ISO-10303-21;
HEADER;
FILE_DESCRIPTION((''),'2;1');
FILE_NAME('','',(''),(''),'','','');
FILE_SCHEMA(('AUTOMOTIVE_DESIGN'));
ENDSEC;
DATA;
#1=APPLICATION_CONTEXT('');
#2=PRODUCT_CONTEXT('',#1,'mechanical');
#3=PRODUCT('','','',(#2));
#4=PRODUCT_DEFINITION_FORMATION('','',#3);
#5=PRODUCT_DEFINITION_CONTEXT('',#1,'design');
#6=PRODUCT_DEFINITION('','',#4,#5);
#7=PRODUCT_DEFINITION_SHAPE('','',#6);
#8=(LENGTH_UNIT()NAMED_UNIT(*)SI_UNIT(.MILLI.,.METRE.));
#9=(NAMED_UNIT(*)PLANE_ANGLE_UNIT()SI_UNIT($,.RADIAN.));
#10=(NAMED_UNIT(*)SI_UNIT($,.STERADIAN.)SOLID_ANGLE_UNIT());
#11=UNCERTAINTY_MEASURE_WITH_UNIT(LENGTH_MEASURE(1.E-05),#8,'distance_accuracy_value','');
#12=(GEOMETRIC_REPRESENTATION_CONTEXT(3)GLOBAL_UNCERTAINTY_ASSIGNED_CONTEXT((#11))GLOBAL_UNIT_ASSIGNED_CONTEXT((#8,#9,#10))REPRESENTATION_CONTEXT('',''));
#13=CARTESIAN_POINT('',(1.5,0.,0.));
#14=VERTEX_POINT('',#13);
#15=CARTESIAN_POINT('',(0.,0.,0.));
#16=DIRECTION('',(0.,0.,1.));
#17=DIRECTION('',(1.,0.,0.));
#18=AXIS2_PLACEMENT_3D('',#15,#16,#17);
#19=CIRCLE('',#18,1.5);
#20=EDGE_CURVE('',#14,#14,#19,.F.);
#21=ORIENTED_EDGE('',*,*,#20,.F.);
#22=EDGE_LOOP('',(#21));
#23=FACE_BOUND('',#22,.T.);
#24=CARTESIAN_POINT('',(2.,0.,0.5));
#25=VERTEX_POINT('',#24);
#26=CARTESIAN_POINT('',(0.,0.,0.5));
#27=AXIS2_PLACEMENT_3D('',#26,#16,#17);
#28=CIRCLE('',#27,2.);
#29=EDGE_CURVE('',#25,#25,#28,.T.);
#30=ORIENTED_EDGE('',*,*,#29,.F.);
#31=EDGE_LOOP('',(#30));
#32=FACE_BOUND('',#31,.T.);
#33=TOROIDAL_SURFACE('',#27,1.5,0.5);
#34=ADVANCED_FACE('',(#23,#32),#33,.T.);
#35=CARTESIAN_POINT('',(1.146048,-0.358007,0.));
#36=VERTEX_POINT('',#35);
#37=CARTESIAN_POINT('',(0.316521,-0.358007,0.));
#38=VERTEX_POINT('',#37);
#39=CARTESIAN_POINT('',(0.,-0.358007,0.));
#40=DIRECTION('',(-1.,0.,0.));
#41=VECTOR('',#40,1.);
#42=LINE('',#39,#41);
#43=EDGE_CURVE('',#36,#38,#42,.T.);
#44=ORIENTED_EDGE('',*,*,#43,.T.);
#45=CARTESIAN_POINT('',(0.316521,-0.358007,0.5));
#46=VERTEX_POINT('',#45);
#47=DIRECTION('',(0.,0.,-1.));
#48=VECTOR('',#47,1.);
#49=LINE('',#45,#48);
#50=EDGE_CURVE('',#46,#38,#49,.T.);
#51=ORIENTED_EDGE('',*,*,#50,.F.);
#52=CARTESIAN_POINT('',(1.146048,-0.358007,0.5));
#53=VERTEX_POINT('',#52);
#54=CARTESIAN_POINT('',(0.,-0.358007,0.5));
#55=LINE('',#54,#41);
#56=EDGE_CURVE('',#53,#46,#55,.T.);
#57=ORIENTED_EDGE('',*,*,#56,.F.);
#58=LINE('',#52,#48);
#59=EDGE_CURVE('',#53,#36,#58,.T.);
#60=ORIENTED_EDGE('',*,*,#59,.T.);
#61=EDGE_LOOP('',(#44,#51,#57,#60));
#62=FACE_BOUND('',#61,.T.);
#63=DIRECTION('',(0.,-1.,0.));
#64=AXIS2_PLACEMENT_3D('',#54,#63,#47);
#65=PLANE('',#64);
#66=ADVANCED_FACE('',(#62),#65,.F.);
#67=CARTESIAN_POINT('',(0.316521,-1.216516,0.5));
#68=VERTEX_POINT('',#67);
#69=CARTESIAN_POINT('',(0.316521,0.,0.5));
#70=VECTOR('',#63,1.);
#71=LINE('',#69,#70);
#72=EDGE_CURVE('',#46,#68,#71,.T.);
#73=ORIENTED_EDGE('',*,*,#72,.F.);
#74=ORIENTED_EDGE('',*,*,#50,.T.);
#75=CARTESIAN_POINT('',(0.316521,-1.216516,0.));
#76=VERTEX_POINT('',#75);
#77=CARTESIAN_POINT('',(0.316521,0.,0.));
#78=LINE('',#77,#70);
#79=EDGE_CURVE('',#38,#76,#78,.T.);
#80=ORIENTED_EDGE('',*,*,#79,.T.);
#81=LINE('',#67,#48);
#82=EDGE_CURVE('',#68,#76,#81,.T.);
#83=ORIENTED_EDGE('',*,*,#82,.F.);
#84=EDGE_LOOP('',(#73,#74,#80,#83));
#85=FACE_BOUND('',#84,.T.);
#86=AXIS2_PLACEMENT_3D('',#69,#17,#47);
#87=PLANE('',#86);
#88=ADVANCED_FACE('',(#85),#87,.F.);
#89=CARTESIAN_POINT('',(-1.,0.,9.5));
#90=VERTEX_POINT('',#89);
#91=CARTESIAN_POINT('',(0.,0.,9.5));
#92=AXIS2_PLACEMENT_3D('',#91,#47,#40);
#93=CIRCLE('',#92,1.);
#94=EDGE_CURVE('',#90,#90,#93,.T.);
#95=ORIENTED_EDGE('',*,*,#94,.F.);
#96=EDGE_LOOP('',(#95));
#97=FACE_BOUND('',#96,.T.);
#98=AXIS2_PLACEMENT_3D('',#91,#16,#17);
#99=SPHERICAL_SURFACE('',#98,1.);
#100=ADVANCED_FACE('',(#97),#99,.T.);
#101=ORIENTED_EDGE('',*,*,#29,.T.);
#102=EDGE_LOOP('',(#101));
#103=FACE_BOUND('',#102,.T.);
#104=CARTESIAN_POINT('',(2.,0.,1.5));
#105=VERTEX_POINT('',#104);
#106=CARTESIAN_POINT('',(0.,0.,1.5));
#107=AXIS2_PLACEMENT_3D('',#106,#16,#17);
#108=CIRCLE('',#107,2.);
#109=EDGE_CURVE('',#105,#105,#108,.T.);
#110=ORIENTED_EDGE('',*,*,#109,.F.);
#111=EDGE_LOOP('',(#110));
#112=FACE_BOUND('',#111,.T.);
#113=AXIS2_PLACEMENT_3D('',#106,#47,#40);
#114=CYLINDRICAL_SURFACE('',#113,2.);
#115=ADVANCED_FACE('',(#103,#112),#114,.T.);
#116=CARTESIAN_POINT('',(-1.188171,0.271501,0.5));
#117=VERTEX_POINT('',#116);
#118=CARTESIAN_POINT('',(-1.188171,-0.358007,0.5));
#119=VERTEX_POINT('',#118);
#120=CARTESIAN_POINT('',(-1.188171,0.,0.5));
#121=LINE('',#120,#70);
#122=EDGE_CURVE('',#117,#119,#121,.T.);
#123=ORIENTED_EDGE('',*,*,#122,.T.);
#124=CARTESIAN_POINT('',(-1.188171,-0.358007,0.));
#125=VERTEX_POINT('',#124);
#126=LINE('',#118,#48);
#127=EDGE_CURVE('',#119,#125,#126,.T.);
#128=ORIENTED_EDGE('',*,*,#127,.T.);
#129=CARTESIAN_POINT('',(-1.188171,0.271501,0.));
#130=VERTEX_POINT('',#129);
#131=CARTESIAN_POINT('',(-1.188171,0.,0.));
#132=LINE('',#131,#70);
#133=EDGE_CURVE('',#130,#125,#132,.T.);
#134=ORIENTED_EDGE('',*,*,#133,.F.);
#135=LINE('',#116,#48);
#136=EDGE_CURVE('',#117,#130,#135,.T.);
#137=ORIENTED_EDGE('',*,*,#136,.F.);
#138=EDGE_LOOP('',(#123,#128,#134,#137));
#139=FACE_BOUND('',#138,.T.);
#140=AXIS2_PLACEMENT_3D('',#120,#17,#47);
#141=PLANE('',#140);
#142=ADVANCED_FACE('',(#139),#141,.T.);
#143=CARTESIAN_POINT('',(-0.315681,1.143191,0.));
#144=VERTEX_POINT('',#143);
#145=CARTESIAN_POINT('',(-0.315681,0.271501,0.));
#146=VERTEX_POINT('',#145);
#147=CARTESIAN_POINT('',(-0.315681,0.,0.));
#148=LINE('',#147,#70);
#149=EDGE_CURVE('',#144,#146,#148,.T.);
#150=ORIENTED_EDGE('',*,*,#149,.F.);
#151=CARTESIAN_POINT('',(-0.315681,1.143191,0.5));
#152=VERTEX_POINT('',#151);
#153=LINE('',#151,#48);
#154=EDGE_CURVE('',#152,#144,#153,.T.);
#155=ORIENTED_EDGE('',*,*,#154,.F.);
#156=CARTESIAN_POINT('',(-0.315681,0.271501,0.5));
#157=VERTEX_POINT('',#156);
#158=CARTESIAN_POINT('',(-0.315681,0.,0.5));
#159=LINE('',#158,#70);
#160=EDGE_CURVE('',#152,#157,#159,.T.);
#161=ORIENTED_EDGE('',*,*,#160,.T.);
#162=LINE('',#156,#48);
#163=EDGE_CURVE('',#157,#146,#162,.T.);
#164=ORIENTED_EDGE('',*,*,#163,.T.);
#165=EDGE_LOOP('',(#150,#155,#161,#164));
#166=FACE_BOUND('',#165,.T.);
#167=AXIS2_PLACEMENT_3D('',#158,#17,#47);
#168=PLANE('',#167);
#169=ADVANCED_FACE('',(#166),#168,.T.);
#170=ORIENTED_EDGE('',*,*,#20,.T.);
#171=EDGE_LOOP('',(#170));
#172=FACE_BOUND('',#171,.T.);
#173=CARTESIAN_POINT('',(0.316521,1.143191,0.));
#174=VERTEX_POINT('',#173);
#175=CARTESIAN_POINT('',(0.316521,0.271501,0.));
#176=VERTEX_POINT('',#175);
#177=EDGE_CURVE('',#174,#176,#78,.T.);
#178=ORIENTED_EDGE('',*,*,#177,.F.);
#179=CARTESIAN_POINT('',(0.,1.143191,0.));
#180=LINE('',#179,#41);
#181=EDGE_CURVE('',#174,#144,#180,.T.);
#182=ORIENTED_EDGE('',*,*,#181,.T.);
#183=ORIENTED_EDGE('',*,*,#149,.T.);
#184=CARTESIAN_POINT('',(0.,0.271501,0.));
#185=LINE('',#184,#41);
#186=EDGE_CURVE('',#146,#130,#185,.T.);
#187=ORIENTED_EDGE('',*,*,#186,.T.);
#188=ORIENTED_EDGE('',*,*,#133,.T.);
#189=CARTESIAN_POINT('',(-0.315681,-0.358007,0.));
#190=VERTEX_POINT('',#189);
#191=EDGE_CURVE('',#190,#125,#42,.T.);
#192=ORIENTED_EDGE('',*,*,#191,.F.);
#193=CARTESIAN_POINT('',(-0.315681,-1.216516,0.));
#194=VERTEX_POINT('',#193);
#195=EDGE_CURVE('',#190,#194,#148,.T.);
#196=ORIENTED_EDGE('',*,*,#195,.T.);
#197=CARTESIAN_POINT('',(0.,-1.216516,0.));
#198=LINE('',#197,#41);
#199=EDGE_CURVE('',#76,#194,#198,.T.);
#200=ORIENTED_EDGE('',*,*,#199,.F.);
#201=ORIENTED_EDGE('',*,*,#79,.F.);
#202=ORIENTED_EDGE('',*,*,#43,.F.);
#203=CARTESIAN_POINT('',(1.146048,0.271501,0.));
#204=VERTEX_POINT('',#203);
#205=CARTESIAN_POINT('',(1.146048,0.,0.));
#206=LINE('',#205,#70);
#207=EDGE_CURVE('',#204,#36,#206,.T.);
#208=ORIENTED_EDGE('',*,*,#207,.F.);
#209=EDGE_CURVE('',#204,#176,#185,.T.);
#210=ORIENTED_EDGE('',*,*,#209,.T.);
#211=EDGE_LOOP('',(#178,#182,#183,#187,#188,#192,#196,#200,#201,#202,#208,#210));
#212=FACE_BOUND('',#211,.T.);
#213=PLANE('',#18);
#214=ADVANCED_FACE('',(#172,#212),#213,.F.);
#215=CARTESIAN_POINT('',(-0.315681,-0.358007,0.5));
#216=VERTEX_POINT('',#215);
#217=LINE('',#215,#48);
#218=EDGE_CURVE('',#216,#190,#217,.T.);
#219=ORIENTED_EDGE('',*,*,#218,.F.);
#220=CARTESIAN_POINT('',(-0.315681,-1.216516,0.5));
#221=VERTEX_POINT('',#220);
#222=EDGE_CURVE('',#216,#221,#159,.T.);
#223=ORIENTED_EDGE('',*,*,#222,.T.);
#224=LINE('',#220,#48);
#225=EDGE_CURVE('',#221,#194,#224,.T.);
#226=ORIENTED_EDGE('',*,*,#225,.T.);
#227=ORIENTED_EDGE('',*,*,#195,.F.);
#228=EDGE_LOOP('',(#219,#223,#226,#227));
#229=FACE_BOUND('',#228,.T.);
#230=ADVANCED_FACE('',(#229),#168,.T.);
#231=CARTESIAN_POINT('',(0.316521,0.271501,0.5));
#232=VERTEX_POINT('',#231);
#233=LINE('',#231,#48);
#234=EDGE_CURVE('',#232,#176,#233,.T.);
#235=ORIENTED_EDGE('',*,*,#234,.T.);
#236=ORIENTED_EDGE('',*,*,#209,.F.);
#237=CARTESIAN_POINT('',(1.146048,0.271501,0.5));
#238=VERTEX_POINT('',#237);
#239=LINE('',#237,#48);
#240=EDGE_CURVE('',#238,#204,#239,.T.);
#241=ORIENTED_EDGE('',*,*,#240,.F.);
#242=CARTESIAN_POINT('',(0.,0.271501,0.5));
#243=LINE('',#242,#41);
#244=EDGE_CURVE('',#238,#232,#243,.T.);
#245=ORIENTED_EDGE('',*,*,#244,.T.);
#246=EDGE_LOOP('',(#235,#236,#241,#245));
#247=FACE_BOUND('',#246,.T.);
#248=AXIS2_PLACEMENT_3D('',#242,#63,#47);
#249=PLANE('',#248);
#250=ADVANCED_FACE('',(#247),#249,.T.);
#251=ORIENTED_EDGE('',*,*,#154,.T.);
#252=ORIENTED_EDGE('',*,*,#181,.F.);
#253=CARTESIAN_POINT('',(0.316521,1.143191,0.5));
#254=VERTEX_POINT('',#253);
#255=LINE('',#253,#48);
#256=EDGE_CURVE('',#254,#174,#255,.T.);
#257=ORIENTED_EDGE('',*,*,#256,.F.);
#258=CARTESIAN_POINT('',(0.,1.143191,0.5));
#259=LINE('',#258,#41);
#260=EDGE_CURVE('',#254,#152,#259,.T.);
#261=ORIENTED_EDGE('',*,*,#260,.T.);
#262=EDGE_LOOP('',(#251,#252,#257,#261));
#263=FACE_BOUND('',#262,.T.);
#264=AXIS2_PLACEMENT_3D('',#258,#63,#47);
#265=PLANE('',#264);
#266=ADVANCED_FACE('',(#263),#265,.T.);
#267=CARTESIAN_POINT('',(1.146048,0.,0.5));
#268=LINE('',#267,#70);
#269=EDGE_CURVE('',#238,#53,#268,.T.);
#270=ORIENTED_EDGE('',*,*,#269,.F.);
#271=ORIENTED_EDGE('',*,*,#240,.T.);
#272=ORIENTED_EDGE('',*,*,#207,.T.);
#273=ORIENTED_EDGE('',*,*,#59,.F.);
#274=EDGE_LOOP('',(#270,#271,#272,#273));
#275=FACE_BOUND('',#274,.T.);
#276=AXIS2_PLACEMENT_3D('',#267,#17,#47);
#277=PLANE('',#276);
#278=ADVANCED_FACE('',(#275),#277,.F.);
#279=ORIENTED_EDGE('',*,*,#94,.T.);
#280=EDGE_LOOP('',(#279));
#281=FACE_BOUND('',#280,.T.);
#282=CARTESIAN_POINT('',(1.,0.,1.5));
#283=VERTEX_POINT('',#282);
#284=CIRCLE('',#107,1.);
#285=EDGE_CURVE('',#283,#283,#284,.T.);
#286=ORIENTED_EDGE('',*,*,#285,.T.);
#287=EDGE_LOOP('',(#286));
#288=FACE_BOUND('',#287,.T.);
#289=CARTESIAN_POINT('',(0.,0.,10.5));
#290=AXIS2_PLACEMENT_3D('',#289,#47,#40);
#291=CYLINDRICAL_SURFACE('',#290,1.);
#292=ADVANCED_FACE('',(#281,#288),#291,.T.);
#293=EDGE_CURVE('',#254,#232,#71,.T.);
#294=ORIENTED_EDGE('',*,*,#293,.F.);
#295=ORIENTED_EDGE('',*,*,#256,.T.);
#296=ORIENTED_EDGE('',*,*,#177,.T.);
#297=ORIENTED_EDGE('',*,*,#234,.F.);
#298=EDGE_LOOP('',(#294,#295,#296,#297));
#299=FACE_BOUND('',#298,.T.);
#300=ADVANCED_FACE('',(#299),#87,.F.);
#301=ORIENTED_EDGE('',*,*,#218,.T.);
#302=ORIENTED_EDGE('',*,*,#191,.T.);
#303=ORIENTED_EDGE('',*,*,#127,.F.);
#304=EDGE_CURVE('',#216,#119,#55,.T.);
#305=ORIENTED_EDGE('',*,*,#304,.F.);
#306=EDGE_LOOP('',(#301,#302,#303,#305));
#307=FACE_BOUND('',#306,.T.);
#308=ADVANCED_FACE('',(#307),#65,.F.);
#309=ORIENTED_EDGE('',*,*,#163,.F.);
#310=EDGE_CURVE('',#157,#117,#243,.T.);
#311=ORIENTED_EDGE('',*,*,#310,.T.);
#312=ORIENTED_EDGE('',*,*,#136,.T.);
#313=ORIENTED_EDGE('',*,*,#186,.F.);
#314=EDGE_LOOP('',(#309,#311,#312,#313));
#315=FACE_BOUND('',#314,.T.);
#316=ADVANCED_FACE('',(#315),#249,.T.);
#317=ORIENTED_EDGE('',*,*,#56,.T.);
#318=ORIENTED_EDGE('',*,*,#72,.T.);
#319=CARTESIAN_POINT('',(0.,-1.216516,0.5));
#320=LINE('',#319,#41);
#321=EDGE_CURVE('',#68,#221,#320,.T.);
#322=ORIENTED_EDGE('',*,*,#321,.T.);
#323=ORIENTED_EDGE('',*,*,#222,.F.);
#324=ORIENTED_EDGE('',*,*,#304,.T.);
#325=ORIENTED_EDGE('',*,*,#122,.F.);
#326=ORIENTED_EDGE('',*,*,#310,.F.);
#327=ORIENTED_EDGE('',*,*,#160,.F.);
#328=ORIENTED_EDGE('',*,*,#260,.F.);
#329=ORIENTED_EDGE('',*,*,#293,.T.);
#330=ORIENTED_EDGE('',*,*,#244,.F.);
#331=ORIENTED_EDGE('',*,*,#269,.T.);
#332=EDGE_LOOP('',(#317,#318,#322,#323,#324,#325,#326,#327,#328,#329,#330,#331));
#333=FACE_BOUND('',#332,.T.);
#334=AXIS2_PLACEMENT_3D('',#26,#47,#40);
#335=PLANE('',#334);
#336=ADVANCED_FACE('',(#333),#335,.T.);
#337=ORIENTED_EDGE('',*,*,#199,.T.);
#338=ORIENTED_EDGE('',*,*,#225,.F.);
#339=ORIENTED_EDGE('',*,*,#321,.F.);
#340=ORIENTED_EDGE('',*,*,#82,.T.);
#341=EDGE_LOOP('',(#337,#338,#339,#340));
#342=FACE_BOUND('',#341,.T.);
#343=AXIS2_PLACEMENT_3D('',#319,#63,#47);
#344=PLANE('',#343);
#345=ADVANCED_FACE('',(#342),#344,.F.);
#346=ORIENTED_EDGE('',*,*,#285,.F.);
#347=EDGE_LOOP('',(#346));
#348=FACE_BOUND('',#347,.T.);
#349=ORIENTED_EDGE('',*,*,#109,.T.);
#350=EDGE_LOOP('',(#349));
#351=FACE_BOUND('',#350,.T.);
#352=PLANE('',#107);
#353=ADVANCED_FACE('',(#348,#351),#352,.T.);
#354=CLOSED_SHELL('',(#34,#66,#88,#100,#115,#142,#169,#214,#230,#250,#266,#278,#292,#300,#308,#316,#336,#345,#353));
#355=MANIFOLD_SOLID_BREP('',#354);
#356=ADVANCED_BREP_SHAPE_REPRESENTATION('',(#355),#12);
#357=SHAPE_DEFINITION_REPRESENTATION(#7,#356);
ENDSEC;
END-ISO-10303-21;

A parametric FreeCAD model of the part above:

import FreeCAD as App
import Part
import Sketcher

V = App.Vector
Q = App.Units.Quantity


def edges_at(feature, points):
    """Names of the edges that pass closest to the given points."""
    edges = feature.Shape.Edges
    near = lambda p: min(range(len(edges)), key=lambda i: edges[i].distToShape(Part.Vertex(*p))[0])
    return sorted({f"Edge{near(p) + 1}" for p in points})

doc = App.newDocument("Part")
params = doc.addObject("Spreadsheet::Sheet", "Params")
for row, (alias, value) in enumerate([
    ("sketch1_diameter", "4 mm"),
    ("pad1_length", "1.5 mm"),
    ("sketch2_diameter", "2 mm"),
    ("pad2_length", "9 mm"),
    ("fillet_radius", "1 mm"),
    ("fillet2_radius", "0.5 mm"),
    ("pocket1_length", "0.5 mm"),
], start=1):
    params.set(f"A{row}", alias)
    params.set(f"B{row}", "=" + value)
    params.setAlias(f"B{row}", alias)

body = doc.addObject("PartDesign::Body", "Body")

# Sketch on XY plane
sketch1 = doc.addObject("Sketcher::SketchObject", "Sketch")
body.addObject(sketch1)
sketch1.AttachmentSupport = (doc.XY_Plane, [""])
sketch1.MapMode = "FlatFace"
sketch1.addGeometry(Part.Circle(V(0, 0, 0), V(0, 0, 1), 2), False)
sketch1.addConstraint([
    Sketcher.Constraint("Coincident", 0, 3, -1, 1),
    Sketcher.Constraint("Diameter", 0, Q("4 mm")),
])
sketch1.setExpression("Constraints[1]", "Params.sketch1_diameter")
pad1 = doc.addObject("PartDesign::Pad", "Pad")
body.addObject(pad1)
pad1.Profile = sketch1
pad1.setExpression("Length", "Params.pad1_length")

# Sketch on XY plane
sketch2 = doc.addObject("Sketcher::SketchObject", "Sketch001")
body.addObject(sketch2)
sketch2.AttachmentSupport = (doc.XY_Plane, [""])
sketch2.MapMode = "FlatFace"
sketch2.AttachmentOffset = App.Placement(V(0, 0, 1.5), App.Rotation())
sketch2.addGeometry(Part.Circle(V(0, 0, 0), V(0, 0, 1), 1), False)
sketch2.addConstraint([
    Sketcher.Constraint("Coincident", 0, 3, -1, 1),
    Sketcher.Constraint("Diameter", 0, Q("2 mm")),
])
sketch2.setExpression("Constraints[1]", "Params.sketch2_diameter")
pad2 = doc.addObject("PartDesign::Pad", "Pad001")
body.addObject(pad2)
pad2.Profile = sketch2
pad2.setExpression("Length", "Params.pad2_length")
doc.recompute()

fillet = doc.addObject("PartDesign::Fillet", "Fillet")
body.addObject(fillet)
fillet.Base = (pad2, edges_at(pad2, [(-1, 0, 10.5)]))
fillet.setExpression("Radius", "Params.fillet_radius")
doc.recompute()

fillet2 = doc.addObject("PartDesign::Fillet", "Fillet001")
body.addObject(fillet2)
fillet2.Base = (fillet, edges_at(fillet, [(-2, 0, 0)]))
fillet2.setExpression("Radius", "Params.fillet2_radius")

# Sketch on XY plane
sketch3 = doc.addObject("Sketcher::SketchObject", "Sketch002")
body.addObject(sketch3)
sketch3.AttachmentSupport = (doc.XY_Plane, [""])
sketch3.MapMode = "FlatFace"
sketch3.addGeometry([
    Part.LineSegment(V(1.146048, 0.271501, 0), V(1.146048, -0.358007, 0)),  # 0
    Part.LineSegment(V(1.146048, -0.358007, 0), V(0.316521, -0.358007, 0)),  # 1
    Part.LineSegment(V(0.316521, -0.358007, 0), V(0.316521, -1.216516, 0)),  # 2
    Part.LineSegment(V(0.316521, -1.216516, 0), V(-0.315681, -1.216516, 0)),  # 3
    Part.LineSegment(V(-0.315681, -1.216516, 0), V(-0.315681, -0.358007, 0)),  # 4
    Part.LineSegment(V(-0.315681, -0.358007, 0), V(-1.188171, -0.358007, 0)),  # 5
    Part.LineSegment(V(-1.188171, -0.358007, 0), V(-1.188171, 0.271501, 0)),  # 6
    Part.LineSegment(V(-1.188171, 0.271501, 0), V(-0.315681, 0.271501, 0)),  # 7
    Part.LineSegment(V(-0.315681, 0.271501, 0), V(-0.315681, 1.143191, 0)),  # 8
    Part.LineSegment(V(-0.315681, 1.143191, 0), V(0.316521, 1.143191, 0)),  # 9
    Part.LineSegment(V(0.316521, 1.143191, 0), V(0.316521, 0.271501, 0)),  # 10
    Part.LineSegment(V(0.316521, 0.271501, 0), V(1.146048, 0.271501, 0)),  # 11
], False)
sketch3.addConstraint([
    Sketcher.Constraint("Coincident", 0, 2, 1, 1),
    Sketcher.Constraint("Coincident", 1, 2, 2, 1),
    Sketcher.Constraint("Coincident", 2, 2, 3, 1),
    Sketcher.Constraint("Coincident", 3, 2, 4, 1),
    Sketcher.Constraint("Coincident", 4, 2, 5, 1),
    Sketcher.Constraint("Coincident", 5, 2, 6, 1),
    Sketcher.Constraint("Coincident", 6, 2, 7, 1),
    Sketcher.Constraint("Coincident", 7, 2, 8, 1),
    Sketcher.Constraint("Coincident", 8, 2, 9, 1),
    Sketcher.Constraint("Coincident", 9, 2, 10, 1),
    Sketcher.Constraint("Coincident", 10, 2, 11, 1),
    Sketcher.Constraint("Coincident", 11, 2, 0, 1),
    Sketcher.Constraint("Vertical", 0),
    Sketcher.Constraint("Horizontal", 1),
    Sketcher.Constraint("Vertical", 2),
    Sketcher.Constraint("Horizontal", 3),
    Sketcher.Constraint("Vertical", 4),
    Sketcher.Constraint("Horizontal", 5),
    Sketcher.Constraint("Vertical", 6),
    Sketcher.Constraint("Horizontal", 7),
    Sketcher.Constraint("Vertical", 8),
    Sketcher.Constraint("Horizontal", 9),
    Sketcher.Constraint("Vertical", 10),
    Sketcher.Constraint("Horizontal", 11),
    Sketcher.Constraint("Horizontal", 1, 2, 4, 2),
    Sketcher.Constraint("Horizontal", 7, 2, 10, 2),
    Sketcher.Constraint("Vertical", 4, 2, 7, 2),
    Sketcher.Constraint("Vertical", 2, 2, 9, 2),
    Sketcher.Constraint("DistanceX", 5, 2, 5, 1, Q("0.87249 mm")),
    Sketcher.Constraint("DistanceY", 2, 2, 2, 1, Q("0.858509 mm")),
    Sketcher.Constraint("DistanceY", 8, 1, 8, 2, Q("0.87169 mm")),
    Sketcher.Constraint("DistanceY", -1, 1, 6, 2, Q("0.271501 mm")),
    Sketcher.Constraint("DistanceX", 1, 2, 1, 1, Q("0.829527 mm")),
    Sketcher.Constraint("DistanceX", 3, 2, 3, 1, Q("0.632202 mm")),
    Sketcher.Constraint("DistanceY", 0, 2, 0, 1, Q("0.629508 mm")),
    Sketcher.Constraint("DistanceX", -1, 1, 1, 2, Q("0.316521 mm")),
])
pocket1 = doc.addObject("PartDesign::Pocket", "Pocket")
body.addObject(pocket1)
pocket1.Profile = sketch3
pocket1.setExpression("Length", "Params.pocket1_length")
pocket1.Reversed = True

doc.recompute()
